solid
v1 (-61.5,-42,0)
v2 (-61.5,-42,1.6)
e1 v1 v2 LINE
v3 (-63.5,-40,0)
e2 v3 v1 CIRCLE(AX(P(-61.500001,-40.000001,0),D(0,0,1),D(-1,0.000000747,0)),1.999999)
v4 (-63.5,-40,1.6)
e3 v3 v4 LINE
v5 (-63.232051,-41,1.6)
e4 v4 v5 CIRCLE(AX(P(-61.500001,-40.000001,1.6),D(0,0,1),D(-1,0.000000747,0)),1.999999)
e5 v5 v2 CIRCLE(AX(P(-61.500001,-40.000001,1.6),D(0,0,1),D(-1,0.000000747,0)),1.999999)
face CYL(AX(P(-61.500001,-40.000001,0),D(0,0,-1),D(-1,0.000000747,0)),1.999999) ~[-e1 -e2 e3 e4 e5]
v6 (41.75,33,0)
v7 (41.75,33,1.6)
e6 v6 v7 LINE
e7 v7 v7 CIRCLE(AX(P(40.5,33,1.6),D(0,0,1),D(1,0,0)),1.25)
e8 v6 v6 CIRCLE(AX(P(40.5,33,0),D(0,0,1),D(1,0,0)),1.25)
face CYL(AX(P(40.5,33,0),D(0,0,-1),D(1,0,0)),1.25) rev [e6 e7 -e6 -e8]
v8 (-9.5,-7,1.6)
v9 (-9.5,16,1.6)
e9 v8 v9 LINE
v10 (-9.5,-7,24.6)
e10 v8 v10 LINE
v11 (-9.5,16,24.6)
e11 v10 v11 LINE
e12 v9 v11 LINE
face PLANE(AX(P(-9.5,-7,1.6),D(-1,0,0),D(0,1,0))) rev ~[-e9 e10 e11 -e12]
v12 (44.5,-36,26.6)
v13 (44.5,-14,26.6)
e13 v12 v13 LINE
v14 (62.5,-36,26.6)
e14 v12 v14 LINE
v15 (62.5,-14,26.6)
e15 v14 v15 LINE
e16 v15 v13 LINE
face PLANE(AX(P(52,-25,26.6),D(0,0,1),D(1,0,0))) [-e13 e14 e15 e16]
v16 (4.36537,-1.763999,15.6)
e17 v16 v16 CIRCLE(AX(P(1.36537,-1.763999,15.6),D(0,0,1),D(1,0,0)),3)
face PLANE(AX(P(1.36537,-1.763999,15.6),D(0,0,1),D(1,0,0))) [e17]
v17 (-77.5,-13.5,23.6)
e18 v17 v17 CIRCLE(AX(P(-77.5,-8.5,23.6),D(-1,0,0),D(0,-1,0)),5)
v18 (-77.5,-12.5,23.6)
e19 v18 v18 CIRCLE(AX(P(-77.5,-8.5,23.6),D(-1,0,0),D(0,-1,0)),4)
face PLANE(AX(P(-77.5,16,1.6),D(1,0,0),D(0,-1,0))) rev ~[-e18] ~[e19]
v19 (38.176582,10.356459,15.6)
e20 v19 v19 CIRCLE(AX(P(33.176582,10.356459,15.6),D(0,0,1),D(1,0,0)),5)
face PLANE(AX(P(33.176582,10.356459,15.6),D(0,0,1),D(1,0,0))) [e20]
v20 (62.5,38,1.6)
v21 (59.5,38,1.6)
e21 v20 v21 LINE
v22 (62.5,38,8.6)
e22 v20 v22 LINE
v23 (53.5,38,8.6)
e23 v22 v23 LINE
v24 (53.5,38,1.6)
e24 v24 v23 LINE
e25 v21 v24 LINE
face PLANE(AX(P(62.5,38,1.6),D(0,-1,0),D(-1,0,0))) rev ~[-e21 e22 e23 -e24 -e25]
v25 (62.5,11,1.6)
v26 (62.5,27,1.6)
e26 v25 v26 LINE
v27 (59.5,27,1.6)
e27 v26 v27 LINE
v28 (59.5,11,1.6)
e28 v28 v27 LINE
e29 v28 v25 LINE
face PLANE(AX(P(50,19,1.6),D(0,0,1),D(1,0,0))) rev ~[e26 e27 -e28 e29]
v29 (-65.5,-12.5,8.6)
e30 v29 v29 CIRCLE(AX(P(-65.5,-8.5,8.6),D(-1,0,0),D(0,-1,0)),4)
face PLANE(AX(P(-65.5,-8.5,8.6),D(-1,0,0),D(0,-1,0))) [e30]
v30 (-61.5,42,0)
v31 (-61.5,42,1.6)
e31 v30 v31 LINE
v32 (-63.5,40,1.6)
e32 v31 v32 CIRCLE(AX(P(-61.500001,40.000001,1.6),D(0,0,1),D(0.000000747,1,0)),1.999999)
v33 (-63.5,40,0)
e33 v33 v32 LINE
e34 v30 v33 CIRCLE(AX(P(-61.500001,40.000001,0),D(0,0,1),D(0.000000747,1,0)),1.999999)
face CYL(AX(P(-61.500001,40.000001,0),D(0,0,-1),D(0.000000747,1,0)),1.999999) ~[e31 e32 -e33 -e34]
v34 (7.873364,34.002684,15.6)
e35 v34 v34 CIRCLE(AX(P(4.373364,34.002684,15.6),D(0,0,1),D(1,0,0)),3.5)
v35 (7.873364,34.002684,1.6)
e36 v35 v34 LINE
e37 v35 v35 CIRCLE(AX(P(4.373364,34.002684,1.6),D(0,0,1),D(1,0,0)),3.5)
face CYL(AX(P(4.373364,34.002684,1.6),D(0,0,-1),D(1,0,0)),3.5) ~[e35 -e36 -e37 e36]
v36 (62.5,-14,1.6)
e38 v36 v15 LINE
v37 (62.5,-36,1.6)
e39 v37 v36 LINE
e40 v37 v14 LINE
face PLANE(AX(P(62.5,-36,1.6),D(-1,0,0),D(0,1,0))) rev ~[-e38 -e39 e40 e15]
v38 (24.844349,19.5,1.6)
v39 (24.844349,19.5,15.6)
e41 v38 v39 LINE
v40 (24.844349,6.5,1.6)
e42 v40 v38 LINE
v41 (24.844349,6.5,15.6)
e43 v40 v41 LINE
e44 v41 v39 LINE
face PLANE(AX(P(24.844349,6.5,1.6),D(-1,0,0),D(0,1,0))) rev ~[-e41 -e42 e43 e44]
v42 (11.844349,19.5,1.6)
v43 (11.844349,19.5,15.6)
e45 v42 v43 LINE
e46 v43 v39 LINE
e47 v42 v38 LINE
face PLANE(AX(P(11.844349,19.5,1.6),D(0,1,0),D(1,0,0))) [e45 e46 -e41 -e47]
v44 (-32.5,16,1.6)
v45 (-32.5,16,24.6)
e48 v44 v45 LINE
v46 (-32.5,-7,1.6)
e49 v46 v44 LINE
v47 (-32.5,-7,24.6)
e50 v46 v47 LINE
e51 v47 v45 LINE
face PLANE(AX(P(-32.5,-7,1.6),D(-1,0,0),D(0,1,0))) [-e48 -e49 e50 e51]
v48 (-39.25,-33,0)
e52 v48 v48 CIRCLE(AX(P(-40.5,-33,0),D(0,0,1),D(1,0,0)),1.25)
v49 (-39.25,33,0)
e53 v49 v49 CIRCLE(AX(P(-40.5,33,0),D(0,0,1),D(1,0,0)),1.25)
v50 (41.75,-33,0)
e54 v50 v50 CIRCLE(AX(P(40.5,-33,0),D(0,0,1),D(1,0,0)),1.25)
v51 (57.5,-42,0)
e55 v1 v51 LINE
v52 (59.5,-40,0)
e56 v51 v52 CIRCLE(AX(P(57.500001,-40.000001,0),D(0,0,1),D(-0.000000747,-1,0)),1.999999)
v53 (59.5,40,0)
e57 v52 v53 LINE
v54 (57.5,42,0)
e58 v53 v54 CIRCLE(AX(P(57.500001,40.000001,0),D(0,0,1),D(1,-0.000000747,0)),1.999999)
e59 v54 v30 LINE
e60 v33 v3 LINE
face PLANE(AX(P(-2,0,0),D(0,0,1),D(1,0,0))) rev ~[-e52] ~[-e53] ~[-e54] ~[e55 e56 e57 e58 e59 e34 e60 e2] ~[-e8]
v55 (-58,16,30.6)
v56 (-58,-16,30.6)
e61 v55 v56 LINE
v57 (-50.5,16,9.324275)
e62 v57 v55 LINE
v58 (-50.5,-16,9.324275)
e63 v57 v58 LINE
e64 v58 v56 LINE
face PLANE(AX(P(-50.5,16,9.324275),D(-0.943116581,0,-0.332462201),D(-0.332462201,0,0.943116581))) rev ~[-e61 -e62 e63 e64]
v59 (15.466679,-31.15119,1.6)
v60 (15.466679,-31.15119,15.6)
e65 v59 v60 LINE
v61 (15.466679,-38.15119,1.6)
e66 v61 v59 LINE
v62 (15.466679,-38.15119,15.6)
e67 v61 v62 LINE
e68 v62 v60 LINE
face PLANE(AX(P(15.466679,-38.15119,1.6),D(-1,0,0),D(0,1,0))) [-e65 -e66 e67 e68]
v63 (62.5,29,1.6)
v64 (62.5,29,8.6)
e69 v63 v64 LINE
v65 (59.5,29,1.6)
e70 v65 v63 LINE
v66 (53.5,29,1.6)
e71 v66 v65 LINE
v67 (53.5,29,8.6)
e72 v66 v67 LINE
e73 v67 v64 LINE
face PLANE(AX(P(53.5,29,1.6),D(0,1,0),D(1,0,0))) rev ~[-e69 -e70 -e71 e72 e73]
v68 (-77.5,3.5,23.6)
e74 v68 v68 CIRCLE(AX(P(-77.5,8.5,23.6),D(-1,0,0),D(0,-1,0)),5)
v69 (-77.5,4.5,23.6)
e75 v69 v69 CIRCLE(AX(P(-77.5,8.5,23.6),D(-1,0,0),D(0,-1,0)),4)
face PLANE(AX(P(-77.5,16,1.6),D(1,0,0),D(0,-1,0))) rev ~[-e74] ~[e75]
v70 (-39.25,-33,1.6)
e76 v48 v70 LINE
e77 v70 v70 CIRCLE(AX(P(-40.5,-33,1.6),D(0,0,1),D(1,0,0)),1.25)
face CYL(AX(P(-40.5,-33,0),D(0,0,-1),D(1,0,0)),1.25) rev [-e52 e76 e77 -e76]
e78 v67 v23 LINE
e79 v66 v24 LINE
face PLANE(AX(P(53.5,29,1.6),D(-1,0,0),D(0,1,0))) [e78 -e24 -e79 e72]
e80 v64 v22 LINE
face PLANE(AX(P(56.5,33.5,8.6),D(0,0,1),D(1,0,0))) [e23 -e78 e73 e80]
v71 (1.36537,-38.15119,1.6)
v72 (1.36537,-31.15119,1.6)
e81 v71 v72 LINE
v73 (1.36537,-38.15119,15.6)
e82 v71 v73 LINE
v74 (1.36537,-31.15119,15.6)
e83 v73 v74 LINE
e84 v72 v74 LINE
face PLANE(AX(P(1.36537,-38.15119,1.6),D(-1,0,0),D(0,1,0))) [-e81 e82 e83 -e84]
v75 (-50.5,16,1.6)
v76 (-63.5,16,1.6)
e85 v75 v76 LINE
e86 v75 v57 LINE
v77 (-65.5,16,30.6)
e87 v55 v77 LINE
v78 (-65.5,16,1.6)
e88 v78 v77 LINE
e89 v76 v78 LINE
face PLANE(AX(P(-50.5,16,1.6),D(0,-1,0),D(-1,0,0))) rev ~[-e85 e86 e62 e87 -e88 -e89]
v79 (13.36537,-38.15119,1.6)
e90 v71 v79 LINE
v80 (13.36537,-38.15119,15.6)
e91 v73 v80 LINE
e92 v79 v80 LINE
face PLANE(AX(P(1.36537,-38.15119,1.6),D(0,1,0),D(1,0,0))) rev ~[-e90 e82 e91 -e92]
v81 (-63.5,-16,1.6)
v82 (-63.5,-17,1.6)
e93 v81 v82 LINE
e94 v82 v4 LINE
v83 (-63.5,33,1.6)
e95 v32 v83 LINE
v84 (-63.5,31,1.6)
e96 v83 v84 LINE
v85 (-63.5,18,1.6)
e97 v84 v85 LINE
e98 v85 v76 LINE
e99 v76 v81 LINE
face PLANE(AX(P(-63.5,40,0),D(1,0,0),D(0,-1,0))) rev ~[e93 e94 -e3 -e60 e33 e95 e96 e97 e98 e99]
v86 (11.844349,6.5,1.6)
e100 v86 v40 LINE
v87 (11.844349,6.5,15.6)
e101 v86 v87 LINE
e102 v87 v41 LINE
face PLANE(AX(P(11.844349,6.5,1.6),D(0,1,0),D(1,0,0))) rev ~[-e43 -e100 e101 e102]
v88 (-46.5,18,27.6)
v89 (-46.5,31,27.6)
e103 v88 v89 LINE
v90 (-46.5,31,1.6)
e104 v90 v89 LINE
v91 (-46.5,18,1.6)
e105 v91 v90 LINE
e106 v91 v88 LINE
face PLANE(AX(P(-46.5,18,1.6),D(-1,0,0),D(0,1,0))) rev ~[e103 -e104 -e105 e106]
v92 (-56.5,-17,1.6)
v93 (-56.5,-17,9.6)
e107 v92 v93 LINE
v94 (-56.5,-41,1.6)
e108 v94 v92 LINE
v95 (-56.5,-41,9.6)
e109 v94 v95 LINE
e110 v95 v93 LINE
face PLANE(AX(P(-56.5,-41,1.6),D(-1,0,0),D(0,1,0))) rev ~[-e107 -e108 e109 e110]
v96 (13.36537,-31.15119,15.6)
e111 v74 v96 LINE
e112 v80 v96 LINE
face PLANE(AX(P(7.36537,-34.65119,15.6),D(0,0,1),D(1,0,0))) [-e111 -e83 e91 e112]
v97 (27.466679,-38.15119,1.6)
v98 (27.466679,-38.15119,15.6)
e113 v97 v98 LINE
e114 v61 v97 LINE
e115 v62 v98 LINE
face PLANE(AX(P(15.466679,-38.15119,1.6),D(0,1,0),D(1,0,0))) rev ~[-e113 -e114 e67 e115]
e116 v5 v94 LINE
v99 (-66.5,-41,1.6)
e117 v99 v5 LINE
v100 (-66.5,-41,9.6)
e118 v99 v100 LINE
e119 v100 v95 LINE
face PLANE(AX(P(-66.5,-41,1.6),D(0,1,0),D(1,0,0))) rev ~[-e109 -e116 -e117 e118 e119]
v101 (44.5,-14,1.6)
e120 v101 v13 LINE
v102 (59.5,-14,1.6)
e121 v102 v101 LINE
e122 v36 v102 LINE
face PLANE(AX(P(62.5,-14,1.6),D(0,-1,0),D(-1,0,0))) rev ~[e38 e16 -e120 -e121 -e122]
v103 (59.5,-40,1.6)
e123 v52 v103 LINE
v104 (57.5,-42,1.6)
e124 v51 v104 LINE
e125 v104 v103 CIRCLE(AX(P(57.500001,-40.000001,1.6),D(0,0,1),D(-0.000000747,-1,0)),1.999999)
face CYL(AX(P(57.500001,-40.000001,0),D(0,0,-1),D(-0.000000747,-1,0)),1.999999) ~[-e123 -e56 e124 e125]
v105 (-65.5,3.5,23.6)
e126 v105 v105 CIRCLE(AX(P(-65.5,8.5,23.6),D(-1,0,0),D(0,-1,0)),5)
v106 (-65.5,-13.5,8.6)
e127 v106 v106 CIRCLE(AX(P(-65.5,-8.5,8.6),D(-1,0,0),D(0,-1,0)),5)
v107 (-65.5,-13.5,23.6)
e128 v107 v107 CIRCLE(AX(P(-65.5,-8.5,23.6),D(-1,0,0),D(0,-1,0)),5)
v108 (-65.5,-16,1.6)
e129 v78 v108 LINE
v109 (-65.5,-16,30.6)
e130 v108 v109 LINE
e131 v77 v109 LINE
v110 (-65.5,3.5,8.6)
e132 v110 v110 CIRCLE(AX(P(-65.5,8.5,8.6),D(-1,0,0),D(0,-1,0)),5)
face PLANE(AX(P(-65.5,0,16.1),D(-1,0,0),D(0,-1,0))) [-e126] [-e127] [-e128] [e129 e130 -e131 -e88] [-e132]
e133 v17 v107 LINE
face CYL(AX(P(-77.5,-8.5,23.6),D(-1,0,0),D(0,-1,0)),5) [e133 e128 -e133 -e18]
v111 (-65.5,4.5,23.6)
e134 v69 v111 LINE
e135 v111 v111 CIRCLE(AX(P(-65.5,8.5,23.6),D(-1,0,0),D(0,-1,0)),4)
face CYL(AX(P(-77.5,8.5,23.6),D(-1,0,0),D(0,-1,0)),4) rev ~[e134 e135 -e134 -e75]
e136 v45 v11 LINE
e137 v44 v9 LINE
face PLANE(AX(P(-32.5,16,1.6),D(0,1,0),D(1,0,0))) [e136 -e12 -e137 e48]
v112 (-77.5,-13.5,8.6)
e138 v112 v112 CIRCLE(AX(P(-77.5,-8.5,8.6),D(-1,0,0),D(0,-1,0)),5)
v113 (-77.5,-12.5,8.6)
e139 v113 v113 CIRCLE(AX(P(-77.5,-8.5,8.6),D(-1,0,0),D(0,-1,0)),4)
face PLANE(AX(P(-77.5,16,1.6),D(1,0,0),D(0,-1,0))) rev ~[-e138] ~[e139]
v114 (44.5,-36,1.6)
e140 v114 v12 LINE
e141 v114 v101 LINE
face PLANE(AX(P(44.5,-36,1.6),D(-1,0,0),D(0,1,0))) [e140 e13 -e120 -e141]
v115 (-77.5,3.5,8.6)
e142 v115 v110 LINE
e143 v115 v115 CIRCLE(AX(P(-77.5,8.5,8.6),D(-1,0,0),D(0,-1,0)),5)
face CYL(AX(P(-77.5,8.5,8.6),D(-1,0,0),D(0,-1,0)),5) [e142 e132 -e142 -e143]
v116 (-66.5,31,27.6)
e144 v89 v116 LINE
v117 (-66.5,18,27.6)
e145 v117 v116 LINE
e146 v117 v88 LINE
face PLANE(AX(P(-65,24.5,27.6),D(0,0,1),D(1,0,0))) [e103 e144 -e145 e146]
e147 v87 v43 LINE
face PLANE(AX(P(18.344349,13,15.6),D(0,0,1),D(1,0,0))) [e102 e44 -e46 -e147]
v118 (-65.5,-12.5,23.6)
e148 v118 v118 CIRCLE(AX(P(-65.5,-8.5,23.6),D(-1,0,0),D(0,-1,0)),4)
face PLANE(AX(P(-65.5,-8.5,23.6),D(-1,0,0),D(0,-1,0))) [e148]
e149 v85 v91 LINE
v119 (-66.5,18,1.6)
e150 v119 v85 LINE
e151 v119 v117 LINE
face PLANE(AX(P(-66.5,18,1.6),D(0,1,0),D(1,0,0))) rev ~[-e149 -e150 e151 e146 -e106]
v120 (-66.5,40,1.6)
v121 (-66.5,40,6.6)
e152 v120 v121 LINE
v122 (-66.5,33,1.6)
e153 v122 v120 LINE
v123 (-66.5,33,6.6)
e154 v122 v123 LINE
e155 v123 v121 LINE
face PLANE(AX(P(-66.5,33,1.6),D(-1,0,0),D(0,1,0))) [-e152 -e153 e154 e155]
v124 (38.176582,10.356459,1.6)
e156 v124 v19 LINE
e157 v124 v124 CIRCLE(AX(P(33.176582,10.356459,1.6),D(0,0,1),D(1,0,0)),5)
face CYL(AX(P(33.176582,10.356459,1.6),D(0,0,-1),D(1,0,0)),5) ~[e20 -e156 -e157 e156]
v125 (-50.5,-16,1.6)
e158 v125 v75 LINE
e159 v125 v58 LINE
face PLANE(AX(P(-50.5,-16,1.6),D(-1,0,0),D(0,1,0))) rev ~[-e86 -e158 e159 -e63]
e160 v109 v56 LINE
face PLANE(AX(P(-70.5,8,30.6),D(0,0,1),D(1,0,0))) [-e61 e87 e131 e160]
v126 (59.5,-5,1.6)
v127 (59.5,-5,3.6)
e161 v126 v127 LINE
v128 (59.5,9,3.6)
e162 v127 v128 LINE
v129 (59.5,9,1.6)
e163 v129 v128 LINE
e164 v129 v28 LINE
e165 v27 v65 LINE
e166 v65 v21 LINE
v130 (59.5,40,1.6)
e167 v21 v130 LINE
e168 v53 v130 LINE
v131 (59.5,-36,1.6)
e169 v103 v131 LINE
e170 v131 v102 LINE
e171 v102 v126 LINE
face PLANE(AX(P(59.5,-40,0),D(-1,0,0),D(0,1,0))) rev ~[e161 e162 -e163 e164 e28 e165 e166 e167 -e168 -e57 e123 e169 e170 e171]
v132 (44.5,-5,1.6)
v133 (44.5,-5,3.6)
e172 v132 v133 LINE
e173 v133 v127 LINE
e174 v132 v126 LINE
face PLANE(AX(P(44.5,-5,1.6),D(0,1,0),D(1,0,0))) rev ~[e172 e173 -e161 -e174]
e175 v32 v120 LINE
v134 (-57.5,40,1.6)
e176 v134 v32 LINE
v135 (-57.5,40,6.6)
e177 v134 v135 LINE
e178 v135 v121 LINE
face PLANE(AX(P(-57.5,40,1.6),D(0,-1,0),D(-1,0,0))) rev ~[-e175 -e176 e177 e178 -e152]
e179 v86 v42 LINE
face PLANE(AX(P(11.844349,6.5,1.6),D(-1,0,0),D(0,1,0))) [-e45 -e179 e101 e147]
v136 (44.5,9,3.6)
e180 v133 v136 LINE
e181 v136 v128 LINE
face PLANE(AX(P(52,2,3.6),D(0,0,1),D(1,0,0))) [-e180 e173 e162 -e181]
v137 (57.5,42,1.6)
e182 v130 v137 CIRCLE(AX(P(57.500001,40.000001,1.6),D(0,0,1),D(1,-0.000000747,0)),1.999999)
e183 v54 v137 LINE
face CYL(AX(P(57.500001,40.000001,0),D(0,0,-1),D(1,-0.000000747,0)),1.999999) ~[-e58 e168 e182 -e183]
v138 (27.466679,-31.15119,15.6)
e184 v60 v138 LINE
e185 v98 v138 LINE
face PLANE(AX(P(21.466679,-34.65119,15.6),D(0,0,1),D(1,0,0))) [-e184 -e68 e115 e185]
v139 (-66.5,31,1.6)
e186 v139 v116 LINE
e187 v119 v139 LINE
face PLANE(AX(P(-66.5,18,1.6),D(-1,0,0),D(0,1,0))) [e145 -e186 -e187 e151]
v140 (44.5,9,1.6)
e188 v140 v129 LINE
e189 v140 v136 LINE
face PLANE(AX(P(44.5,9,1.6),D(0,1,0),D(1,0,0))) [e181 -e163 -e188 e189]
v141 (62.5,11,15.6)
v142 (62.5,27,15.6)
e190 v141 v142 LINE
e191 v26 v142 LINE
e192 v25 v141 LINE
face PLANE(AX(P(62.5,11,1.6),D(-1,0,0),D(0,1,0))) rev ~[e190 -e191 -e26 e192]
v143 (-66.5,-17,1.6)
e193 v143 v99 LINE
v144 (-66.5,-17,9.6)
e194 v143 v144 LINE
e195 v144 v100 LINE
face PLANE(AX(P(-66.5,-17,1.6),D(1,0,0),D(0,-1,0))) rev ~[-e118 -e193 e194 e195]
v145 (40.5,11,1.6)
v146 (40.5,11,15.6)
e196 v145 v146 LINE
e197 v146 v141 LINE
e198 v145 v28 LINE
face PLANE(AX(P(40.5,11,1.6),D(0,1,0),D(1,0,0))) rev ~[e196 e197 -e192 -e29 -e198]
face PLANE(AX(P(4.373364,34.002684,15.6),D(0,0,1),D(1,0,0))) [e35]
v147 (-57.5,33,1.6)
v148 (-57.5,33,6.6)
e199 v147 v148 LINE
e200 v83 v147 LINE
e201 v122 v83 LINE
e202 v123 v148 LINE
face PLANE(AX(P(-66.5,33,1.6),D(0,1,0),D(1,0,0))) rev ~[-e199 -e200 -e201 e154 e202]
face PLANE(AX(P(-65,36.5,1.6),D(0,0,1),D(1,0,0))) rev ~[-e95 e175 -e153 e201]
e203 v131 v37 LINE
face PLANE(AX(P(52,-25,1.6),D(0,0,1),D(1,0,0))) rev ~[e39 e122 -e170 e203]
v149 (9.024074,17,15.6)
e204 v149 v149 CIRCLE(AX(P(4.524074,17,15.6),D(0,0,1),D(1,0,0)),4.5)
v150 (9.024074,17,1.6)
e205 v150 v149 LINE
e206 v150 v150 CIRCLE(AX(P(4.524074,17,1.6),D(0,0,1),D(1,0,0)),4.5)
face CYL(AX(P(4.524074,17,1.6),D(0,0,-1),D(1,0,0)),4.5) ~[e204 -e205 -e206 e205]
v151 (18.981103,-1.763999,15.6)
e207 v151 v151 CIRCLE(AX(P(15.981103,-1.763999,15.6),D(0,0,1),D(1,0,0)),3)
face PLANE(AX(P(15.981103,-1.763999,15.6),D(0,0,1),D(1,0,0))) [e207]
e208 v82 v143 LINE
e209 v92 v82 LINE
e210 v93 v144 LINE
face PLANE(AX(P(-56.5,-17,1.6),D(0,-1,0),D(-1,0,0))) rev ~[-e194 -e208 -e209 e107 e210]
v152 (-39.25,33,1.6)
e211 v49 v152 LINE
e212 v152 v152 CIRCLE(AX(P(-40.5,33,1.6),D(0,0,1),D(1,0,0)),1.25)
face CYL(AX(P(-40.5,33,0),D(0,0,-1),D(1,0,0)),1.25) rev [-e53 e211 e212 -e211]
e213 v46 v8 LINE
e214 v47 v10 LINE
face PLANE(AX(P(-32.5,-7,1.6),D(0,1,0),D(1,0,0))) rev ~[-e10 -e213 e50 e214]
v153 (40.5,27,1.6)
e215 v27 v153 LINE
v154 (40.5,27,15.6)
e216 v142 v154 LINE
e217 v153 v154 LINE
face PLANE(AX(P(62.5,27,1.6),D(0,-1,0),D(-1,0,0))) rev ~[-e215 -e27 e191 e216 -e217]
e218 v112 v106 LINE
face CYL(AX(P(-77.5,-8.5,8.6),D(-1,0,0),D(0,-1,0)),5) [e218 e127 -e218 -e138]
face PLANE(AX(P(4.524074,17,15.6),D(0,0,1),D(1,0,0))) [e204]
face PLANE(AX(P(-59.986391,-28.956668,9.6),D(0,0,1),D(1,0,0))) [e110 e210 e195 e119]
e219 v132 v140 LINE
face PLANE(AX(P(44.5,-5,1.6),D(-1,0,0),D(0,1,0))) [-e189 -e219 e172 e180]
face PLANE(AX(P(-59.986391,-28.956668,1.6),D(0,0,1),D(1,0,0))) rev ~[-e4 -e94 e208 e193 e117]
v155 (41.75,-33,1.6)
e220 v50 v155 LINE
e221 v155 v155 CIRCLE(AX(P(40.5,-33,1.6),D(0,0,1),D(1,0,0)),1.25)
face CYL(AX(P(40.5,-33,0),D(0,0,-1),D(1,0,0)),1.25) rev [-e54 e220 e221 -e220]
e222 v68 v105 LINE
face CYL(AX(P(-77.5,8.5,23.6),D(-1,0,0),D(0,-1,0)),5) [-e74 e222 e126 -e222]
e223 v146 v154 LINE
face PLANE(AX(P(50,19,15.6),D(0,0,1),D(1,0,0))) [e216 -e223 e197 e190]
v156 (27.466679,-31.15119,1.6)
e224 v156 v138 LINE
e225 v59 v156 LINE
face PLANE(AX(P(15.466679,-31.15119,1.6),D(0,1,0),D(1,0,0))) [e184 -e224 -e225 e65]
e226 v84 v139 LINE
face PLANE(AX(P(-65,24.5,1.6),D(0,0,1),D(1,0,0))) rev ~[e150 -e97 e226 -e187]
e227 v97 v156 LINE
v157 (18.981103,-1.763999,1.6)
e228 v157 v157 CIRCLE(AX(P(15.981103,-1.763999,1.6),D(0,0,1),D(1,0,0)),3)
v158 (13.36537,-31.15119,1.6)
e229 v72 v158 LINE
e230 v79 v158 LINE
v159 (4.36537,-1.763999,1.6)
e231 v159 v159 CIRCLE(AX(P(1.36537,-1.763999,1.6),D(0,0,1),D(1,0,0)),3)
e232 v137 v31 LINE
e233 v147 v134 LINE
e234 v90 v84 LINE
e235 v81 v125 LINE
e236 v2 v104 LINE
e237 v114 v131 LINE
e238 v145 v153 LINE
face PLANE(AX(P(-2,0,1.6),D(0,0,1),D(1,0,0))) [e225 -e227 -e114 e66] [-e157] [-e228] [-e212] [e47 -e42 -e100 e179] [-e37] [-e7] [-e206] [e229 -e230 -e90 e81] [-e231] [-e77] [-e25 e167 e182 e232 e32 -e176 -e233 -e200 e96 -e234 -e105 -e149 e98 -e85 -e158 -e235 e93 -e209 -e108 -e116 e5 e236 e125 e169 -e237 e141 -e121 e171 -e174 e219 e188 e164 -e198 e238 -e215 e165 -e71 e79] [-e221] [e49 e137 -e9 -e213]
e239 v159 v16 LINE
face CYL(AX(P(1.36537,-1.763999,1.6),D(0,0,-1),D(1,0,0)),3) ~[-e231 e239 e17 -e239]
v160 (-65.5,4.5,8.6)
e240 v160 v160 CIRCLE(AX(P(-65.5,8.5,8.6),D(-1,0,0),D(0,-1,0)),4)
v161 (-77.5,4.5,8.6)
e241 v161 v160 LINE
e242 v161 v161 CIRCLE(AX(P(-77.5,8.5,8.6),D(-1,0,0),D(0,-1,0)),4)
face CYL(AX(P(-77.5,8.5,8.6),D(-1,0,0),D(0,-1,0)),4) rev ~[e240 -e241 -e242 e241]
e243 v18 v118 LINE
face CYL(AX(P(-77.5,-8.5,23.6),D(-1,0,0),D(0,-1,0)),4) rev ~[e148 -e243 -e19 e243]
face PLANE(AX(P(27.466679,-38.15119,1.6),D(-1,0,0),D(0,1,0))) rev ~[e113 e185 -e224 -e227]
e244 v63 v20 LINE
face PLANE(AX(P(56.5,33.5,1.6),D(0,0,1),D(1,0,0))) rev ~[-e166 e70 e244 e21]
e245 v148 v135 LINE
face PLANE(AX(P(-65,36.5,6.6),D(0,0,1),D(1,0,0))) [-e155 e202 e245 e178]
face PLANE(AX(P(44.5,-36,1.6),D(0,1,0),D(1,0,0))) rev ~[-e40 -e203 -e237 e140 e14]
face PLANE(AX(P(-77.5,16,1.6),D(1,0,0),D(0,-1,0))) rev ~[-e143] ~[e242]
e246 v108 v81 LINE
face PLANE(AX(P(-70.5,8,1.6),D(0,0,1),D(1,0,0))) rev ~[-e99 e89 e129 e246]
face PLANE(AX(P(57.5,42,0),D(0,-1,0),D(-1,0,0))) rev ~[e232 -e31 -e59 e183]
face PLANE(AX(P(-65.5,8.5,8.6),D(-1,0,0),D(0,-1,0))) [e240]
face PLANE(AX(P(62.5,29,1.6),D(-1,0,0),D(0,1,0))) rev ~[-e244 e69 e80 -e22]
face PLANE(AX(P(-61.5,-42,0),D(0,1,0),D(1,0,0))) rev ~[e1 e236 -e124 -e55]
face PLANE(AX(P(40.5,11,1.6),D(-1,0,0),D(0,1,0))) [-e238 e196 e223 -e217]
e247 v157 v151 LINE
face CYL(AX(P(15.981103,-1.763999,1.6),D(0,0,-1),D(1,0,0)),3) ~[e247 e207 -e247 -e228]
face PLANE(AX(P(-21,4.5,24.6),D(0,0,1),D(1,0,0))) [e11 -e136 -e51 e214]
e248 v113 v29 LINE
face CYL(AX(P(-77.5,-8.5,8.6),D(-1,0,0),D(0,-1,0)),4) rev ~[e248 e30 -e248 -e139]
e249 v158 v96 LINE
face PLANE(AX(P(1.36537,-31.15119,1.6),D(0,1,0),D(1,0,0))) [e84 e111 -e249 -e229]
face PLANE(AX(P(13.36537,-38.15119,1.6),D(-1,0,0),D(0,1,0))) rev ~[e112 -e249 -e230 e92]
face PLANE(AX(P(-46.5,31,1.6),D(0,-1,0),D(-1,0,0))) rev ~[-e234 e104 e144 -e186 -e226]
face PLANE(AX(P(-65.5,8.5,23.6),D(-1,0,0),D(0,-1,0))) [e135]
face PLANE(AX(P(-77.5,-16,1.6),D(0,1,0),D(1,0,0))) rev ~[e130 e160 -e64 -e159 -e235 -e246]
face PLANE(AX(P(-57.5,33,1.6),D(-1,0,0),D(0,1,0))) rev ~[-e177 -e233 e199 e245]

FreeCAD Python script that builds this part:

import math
import FreeCAD as App
import Part
import Sketcher
Q = App.Units.Quantity


def add_polygon(sketch, points):
    """Adds a closed chain of lines whose ends are joined by coincident constraints."""
    first, n = sketch.GeometryCount, len(points)
    for a, b in zip(points, points[1:] + points[:1]):
        sketch.addGeometry(Part.LineSegment(App.Vector(*a, 0), App.Vector(*b, 0)), False)
    for i in range(n):
        sketch.addConstraint(Sketcher.Constraint("Coincident", first + i, 2, first + (i + 1) % n, 1))

doc = App.newDocument("Part")
params = doc.addObject("Spreadsheet::Sheet", "Params")
for row, (alias, value) in enumerate([
    ("sketch1_radius", "1.999999 mm"),
    ("sketch1_diameter", "2.5 mm"),
    ("sketch1_width", "119 mm"),
    ("sketch1_height", "80 mm"),
    ("pad1_length", "1.6 mm"),
    ("sketch2_width", "9 mm"),
    ("sketch2_height", "7 mm"),
    ("pad2_length", "5 mm"),
    ("sketch3_width", "10 mm"),
    ("sketch3_height", "24 mm"),
    ("pad3_length", "8 mm"),
    ("sketch4_width", "27 mm"),
    ("sketch4_height", "32 mm"),
    ("pad4_length", "29 mm"),
    ("sketch5_diameter", "10 mm"),
    ("sketch5_diameter2", "8 mm"),
    ("sketch5_width", "32 mm"),
    ("sketch5_height", "29 mm"),
    ("pocket1_length", "12 mm"),
    ("sketch6_width", "7.5 mm"),
    ("sketch7_width", "20 mm"),
    ("sketch7_height", "13 mm"),
    ("pad5_length", "26 mm"),
    ("sketch8_width", "9 mm"),
    ("pad6_length", "7 mm"),
    ("sketch9_diameter", "7 mm"),
    ("sketch9_diameter2", "9 mm"),
    ("sketch9_diameter3", "10 mm"),
    ("sketch9_diameter4", "6 mm"),
    ("sketch9_width", "22 mm"),
    ("pad7_length", "14 mm"),
    ("sketch10_width", "15 mm"),
    ("sketch10_height", "14 mm"),
    ("pad8_length", "2 mm"),
    ("sketch11_width", "18 mm"),
    ("sketch11_height", "22 mm"),
    ("pad9_length", "25 mm"),
    ("sketch12_width", "23 mm"),
    ("pad10_length", "23 mm"),
], start=1):
    params.set(f"A{row}", alias)
    params.set(f"B{row}", "=" + value)
    params.setAlias(f"B{row}", alias)

body = doc.addObject("PartDesign::Body", "Body")

sketch1 = doc.addObject("Sketcher::SketchObject", "Sketch")
body.addObject(sketch1)
sketch1.AttachmentSupport = (doc.XY_Plane, [""])
sketch1.MapMode = "FlatFace"
sketch1.addGeometry([
    Part.LineSegment(App.Vector(57.5, 42, 0), App.Vector(-61.5, 42, 0)),
    Part.ArcOfCircle(Part.Circle(App.Vector(-61.500001, 40.000001, 0), App.Vector(0, 0, 1), 1.999999), math.radians(89.999957), math.radians(180.000043)),
    Part.LineSegment(App.Vector(-63.5, 40, 0), App.Vector(-63.5, -40, 0)),
    Part.ArcOfCircle(Part.Circle(App.Vector(-61.500001, -40.000001, 0), App.Vector(0, 0, 1), 1.999999), math.radians(179.999957), math.radians(270.000043)),
    Part.LineSegment(App.Vector(-61.5, -42, 0), App.Vector(57.5, -42, 0)),
    Part.ArcOfCircle(Part.Circle(App.Vector(57.500001, -40.000001, 0), App.Vector(0, 0, 1), 1.999999), math.radians(-90.000043), math.radians(0.000043)),
    Part.LineSegment(App.Vector(59.5, -40, 0), App.Vector(59.5, 40, 0)),
    Part.ArcOfCircle(Part.Circle(App.Vector(57.500001, 40.000001, 0), App.Vector(0, 0, 1), 1.999999), math.radians(-0.000043), math.radians(90.000043)),
    Part.Circle(App.Vector(-40.5, -33, 0), App.Vector(0, 0, 1), 1.25),
    Part.Circle(App.Vector(40.5, -33, 0), App.Vector(0, 0, 1), 1.25),
    Part.Circle(App.Vector(-40.5, 33, 0), App.Vector(0, 0, 1), 1.25),
    Part.Circle(App.Vector(40.5, 33, 0), App.Vector(0, 0, 1), 1.25),
], False)
sketch1.addConstraint([
    Sketcher.Constraint("Tangent", 0, 2, 1, 1),
    Sketcher.Constraint("Tangent", 1, 2, 2, 1),
    Sketcher.Constraint("Tangent", 2, 2, 3, 1),
    Sketcher.Constraint("Tangent", 3, 2, 4, 1),
    Sketcher.Constraint("Tangent", 4, 2, 5, 1),
    Sketcher.Constraint("Tangent", 5, 2, 6, 1),
    Sketcher.Constraint("Tangent", 6, 2, 7, 1),
    Sketcher.Constraint("Tangent", 7, 2, 0, 1),
    Sketcher.Constraint("Horizontal", 0),
    Sketcher.Constraint("Vertical", 2),
    Sketcher.Constraint("Horizontal", 4),
    Sketcher.Constraint("Vertical", 6),
    Sketcher.Constraint("Equal", 1, 3),
    Sketcher.Constraint("Equal", 3, 5),
    Sketcher.Constraint("Equal", 5, 7),
    Sketcher.Constraint("Equal", 8, 9),
    Sketcher.Constraint("Equal", 9, 10),
    Sketcher.Constraint("Equal", 10, 11),
    Sketcher.Constraint("Symmetric", 9, 3, 10, 3, -1, 1),
    Sketcher.Constraint("Symmetric", 8, 3, 11, 3, -1, 1),
    Sketcher.Constraint("Symmetric", 8, 3, 9, 3, -2),
    Sketcher.Constraint("Radius", 1, Q("1.999999 mm")),
    Sketcher.Constraint("Diameter", 8, Q("2.5 mm")),
    Sketcher.Constraint("DistanceX", 0, 2, 0, 1, Q("119 mm")),
    Sketcher.Constraint("DistanceY", 2, 2, 2, 1, Q("80 mm")),
    Sketcher.Constraint("DistanceY", -1, 1, 1, 3, Q("40.000001 mm")),
    Sketcher.Constraint("DistanceY", 8, 3, -1, 1, Q("33 mm")),
    Sketcher.Constraint("DistanceX", 3, 3, 8, 3, Q("21.000001 mm")),
    Sketcher.Constraint("DistanceX", 9, 3, 5, 3, Q("17.000001 mm")),
])
sketch1.setExpression("Constraints[21]", "Params.sketch1_radius")
sketch1.setExpression("Constraints[22]", "Params.sketch1_diameter")
sketch1.setExpression("Constraints[23]", "Params.sketch1_width")
sketch1.setExpression("Constraints[24]", "Params.sketch1_height")
pad1 = doc.addObject("PartDesign::Pad", "Pad")
body.addObject(pad1)
pad1.Profile = sketch1
pad1.setExpression("Length", "Params.pad1_length")

sketch2 = doc.addObject("Sketcher::SketchObject", "Sketch001")
body.addObject(sketch2)
sketch2.AttachmentSupport = (doc.XY_Plane, [""])
sketch2.MapMode = "FlatFace"
sketch2.AttachmentOffset = App.Placement(App.Vector(0, 0, 1.6), App.Rotation())
add_polygon(sketch2, [(-66.5, 40), (-66.5, 33), (-57.5, 33), (-57.5, 40)])
sketch2.addConstraint([
    Sketcher.Constraint("Vertical", 0),
    Sketcher.Constraint("Horizontal", 1),
    Sketcher.Constraint("Vertical", 2),
    Sketcher.Constraint("Horizontal", 3),
    Sketcher.Constraint("DistanceX", 1, 1, 1, 2, Q("9 mm")),
    Sketcher.Constraint("DistanceY", 0, 2, 0, 1, Q("7 mm")),
    Sketcher.Constraint("DistanceY", -1, 1, 0, 2, Q("33 mm")),
    Sketcher.Constraint("DistanceX", 0, 2, -1, 1, Q("66.5 mm")),
])
sketch2.setExpression("Constraints[8]", "Params.sketch2_width")
sketch2.setExpression("Constraints[9]", "Params.sketch2_height")
pad2 = doc.addObject("PartDesign::Pad", "Pad001")
body.addObject(pad2)
pad2.Profile = sketch2
pad2.setExpression("Length", "Params.pad2_length")

sketch3 = doc.addObject("Sketcher::SketchObject", "Sketch002")
body.addObject(sketch3)
sketch3.AttachmentSupport = (doc.XY_Plane, [""])
sketch3.MapMode = "FlatFace"
sketch3.AttachmentOffset = App.Placement(App.Vector(0, 0, 1.6), App.Rotation())
add_polygon(sketch3, [(-56.5, -17), (-66.5, -17), (-66.5, -41), (-56.5, -41)])
sketch3.addConstraint([
    Sketcher.Constraint("Horizontal", 0),
    Sketcher.Constraint("Vertical", 1),
    Sketcher.Constraint("Horizontal", 2),
    Sketcher.Constraint("Vertical", 3),
    Sketcher.Constraint("DistanceX", 0, 2, 0, 1, Q("10 mm")),
    Sketcher.Constraint("DistanceY", 1, 2, 1, 1, Q("24 mm")),
    Sketcher.Constraint("DistanceY", 0, 2, -1, 1, Q("17 mm")),
    Sketcher.Constraint("DistanceX", 0, 2, -1, 1, Q("66.5 mm")),
])
sketch3.setExpression("Constraints[8]", "Params.sketch3_width")
sketch3.setExpression("Constraints[9]", "Params.sketch3_height")
pad3 = doc.addObject("PartDesign::Pad", "Pad002")
body.addObject(pad3)
pad3.Profile = sketch3
pad3.setExpression("Length", "Params.pad3_length")

sketch4 = doc.addObject("Sketcher::SketchObject", "Sketch003")
body.addObject(sketch4)
sketch4.AttachmentSupport = (doc.XY_Plane, [""])
sketch4.MapMode = "FlatFace"
sketch4.AttachmentOffset = App.Placement(App.Vector(0, 0, 1.6), App.Rotation())
add_polygon(sketch4, [(-77.5, 16), (-77.5, -16), (-50.5, -16), (-50.5, 16)])
sketch4.addConstraint([
    Sketcher.Constraint("Vertical", 0),
    Sketcher.Constraint("Horizontal", 1),
    Sketcher.Constraint("Vertical", 2),
    Sketcher.Constraint("Horizontal", 3),
    Sketcher.Constraint("DistanceX", 1, 1, 1, 2, Q("27 mm")),
    Sketcher.Constraint("DistanceY", 0, 2, 0, 1, Q("32 mm")),
    Sketcher.Constraint("DistanceY", 0, 2, -1, 1, Q("16 mm")),
    Sketcher.Constraint("DistanceX", 0, 2, -1, 1, Q("77.5 mm")),
])
sketch4.setExpression("Constraints[8]", "Params.sketch4_width")
sketch4.setExpression("Constraints[9]", "Params.sketch4_height")
pad4 = doc.addObject("PartDesign::Pad", "Pad003")
body.addObject(pad4)
pad4.Profile = sketch4
pad4.setExpression("Length", "Params.pad4_length")

sketch5 = doc.addObject("Sketcher::SketchObject", "Sketch004")
body.addObject(sketch5)
sketch5.AttachmentSupport = (doc.YZ_Plane, [""])
sketch5.MapMode = "FlatFace"
sketch5.AttachmentOffset = App.Placement(App.Vector(0, 0, -77.5), App.Rotation())
add_polygon(sketch5, [(16, 30.6), (16, 1.6), (-16, 1.6), (-16, 30.6)])
sketch5.addGeometry(Part.Circle(App.Vector(8.5, 8.6, 0), App.Vector(0, 0, 1), 5), False)
sketch5.addGeometry(Part.Circle(App.Vector(-8.5, 8.6, 0), App.Vector(0, 0, 1), 5), False)
sketch5.addGeometry(Part.Circle(App.Vector(8.5, 23.6, 0), App.Vector(0, 0, 1), 5), False)
sketch5.addGeometry(Part.Circle(App.Vector(-8.5, 23.6, 0), App.Vector(0, 0, 1), 5), False)
sketch5.addGeometry(Part.Circle(App.Vector(8.5, 23.6, 0), App.Vector(0, 0, 1), 4), False)
sketch5.addGeometry(Part.Circle(App.Vector(-8.5, 23.6, 0), App.Vector(0, 0, 1), 4), False)
sketch5.addGeometry(Part.Circle(App.Vector(8.5, 8.6, 0), App.Vector(0, 0, 1), 4), False)
sketch5.addGeometry(Part.Circle(App.Vector(-8.5, 8.6, 0), App.Vector(0, 0, 1), 4), False)
sketch5.addConstraint([
    Sketcher.Constraint("Vertical", 0),
    Sketcher.Constraint("Horizontal", 1),
    Sketcher.Constraint("Vertical", 2),
    Sketcher.Constraint("Horizontal", 3),
    Sketcher.Constraint("Coincident", 8, 3, 6, 3),
    Sketcher.Constraint("Coincident", 9, 3, 7, 3),
    Sketcher.Constraint("Coincident", 10, 3, 4, 3),
    Sketcher.Constraint("Coincident", 11, 3, 5, 3),
    Sketcher.Constraint("Equal", 4, 5),
    Sketcher.Constraint("Equal", 5, 6),
    Sketcher.Constraint("Equal", 6, 7),
    Sketcher.Constraint("Equal", 8, 9),
    Sketcher.Constraint("Equal", 9, 10),
    Sketcher.Constraint("Equal", 10, 11),
    Sketcher.Constraint("Symmetric", 4, 3, 5, 3, -2),
    Sketcher.Constraint("Symmetric", 6, 3, 7, 3, -2),
    Sketcher.Constraint("Vertical", 4, 3, 6, 3),
    Sketcher.Constraint("Diameter", 4, Q("10 mm")),
    Sketcher.Constraint("Diameter", 8, Q("8 mm")),
    Sketcher.Constraint("DistanceX", 1, 2, 1, 1, Q("32 mm")),
    Sketcher.Constraint("DistanceY", 0, 2, 0, 1, Q("29 mm")),
    Sketcher.Constraint("DistanceX", -1, 1, 0, 2, Q("16 mm")),
    Sketcher.Constraint("DistanceX", 5, 3, 4, 3, Q("17 mm")),
    Sketcher.Constraint("DistanceY", 4, 3, 6, 3, Q("15 mm")),
    Sketcher.Constraint("DistanceY", 0, 2, 4, 3, Q("7 mm")),
    Sketcher.Constraint("DistanceY", -1, 1, 4, 3, Q("8.6 mm")),
])
sketch5.setExpression("Constraints[21]", "Params.sketch5_diameter")
sketch5.setExpression("Constraints[22]", "Params.sketch5_diameter2")
sketch5.setExpression("Constraints[23]", "Params.sketch5_width")
sketch5.setExpression("Constraints[24]", "Params.sketch5_height")
pocket1 = doc.addObject("PartDesign::Pocket", "Pocket")
body.addObject(pocket1)
pocket1.Profile = sketch5
pocket1.setExpression("Length", "Params.pocket1_length")
pocket1.Reversed = True

sketch6 = doc.addObject("Sketcher::SketchObject", "Sketch005")
body.addObject(sketch6)
sketch6.AttachmentSupport = (doc.XZ_Plane, [""])
sketch6.MapMode = "FlatFace"
sketch6.AttachmentOffset = App.Placement(App.Vector(0, 0, -16), App.Rotation())
add_polygon(sketch6, [(-50.5, 9.324275), (-58, 30.6), (-50.5, 30.6)])
sketch6.addConstraint([
    Sketcher.Constraint("Horizontal", 1),
    Sketcher.Constraint("Vertical", 2),
    Sketcher.Constraint("DistanceX", 1, 1, 1, 2, Q("7.5 mm")),
    Sketcher.Constraint("DistanceX", 0, 2, -1, 1, Q("58 mm")),
    Sketcher.Constraint("DistanceY", -1, 1, 0, 2, Q("30.6 mm")),
    Sketcher.Constraint("DistanceY", 2, 2, 2, 1, Q("21.275725 mm")),
])
sketch6.setExpression("Constraints[5]", "Params.sketch6_width")
pocket2 = doc.addObject("PartDesign::Pocket", "Pocket001")
body.addObject(pocket2)
pocket2.Profile = sketch6
pocket2.Type = "ThroughAll"
pocket2.Reversed = True

sketch7 = doc.addObject("Sketcher::SketchObject", "Sketch006")
body.addObject(sketch7)
sketch7.AttachmentSupport = (doc.XY_Plane, [""])
sketch7.MapMode = "FlatFace"
sketch7.AttachmentOffset = App.Placement(App.Vector(0, 0, 1.6), App.Rotation())
add_polygon(sketch7, [(-66.5, 31), (-66.5, 18), (-46.5, 18), (-46.5, 31)])
sketch7.addConstraint([
    Sketcher.Constraint("Vertical", 0),
    Sketcher.Constraint("Horizontal", 1),
    Sketcher.Constraint("Vertical", 2),
    Sketcher.Constraint("Horizontal", 3),
    Sketcher.Constraint("DistanceX", 1, 1, 1, 2, Q("20 mm")),
    Sketcher.Constraint("DistanceY", 0, 2, 0, 1, Q("13 mm")),
    Sketcher.Constraint("DistanceY", -1, 1, 0, 2, Q("18 mm")),
    Sketcher.Constraint("DistanceX", 0, 2, -1, 1, Q("66.5 mm")),
])
sketch7.setExpression("Constraints[8]", "Params.sketch7_width")
sketch7.setExpression("Constraints[9]", "Params.sketch7_height")
pad5 = doc.addObject("PartDesign::Pad", "Pad004")
body.addObject(pad5)
pad5.Profile = sketch7
pad5.setExpression("Length", "Params.pad5_length")

sketch8 = doc.addObject("Sketcher::SketchObject", "Sketch007")
body.addObject(sketch8)
sketch8.AttachmentSupport = (doc.XY_Plane, [""])
sketch8.MapMode = "FlatFace"
sketch8.AttachmentOffset = App.Placement(App.Vector(0, 0, 1.6), App.Rotation())
add_polygon(sketch8, [(53.5, 38), (53.5, 29), (62.5, 29), (62.5, 38)])
sketch8.addConstraint([
    Sketcher.Constraint("Vertical", 0),
    Sketcher.Constraint("Horizontal", 1),
    Sketcher.Constraint("Vertical", 2),
    Sketcher.Constraint("Horizontal", 3),
    Sketcher.Constraint("Equal", 3, 0),
    Sketcher.Constraint("DistanceX", 1, 1, 1, 2, Q("9 mm")),
    Sketcher.Constraint("DistanceY", -1, 1, 0, 2, Q("29 mm")),
    Sketcher.Constraint("DistanceX", -1, 1, 0, 2, Q("53.5 mm")),
])
sketch8.setExpression("Constraints[9]", "Params.sketch8_width")
pad6 = doc.addObject("PartDesign::Pad", "Pad005")
body.addObject(pad6)
pad6.Profile = sketch8
pad6.setExpression("Length", "Params.pad6_length")

sketch9 = doc.addObject("Sketcher::SketchObject", "Sketch008")
body.addObject(sketch9)
sketch9.AttachmentSupport = (doc.XY_Plane, [""])
sketch9.MapMode = "FlatFace"
sketch9.AttachmentOffset = App.Placement(App.Vector(0, 0, 1.6), App.Rotation())
add_polygon(sketch9, [(40.5, 27), (40.5, 11), (62.5, 11), (62.5, 27)])
sketch9.addGeometry(Part.Circle(App.Vector(4.373364, 34.002684, 0), App.Vector(0, 0, 1), 3.5), False)
sketch9.addGeometry(Part.Circle(App.Vector(4.524074, 17, 0), App.Vector(0, 0, 1), 4.5), False)
add_polygon(sketch9, [(11.844349, 19.5), (11.844349, 6.5), (24.844349, 6.5), (24.844349, 19.5)])
sketch9.addGeometry(Part.Circle(App.Vector(33.176582, 10.356459, 0), App.Vector(0, 0, 1), 5), False)
sketch9.addGeometry(Part.Circle(App.Vector(15.981103, -1.763999, 0), App.Vector(0, 0, 1), 3), False)
sketch9.addGeometry(Part.Circle(App.Vector(1.36537, -1.763999, 0), App.Vector(0, 0, 1), 3), False)
add_polygon(sketch9, [(1.36537, -31.15119), (1.36537, -38.15119), (13.36537, -38.15119), (13.36537, -31.15119)])
add_polygon(sketch9, [(15.466679, -31.15119), (15.466679, -38.15119), (27.466679, -38.15119), (27.466679, -31.15119)])
sketch9.addConstraint([
    Sketcher.Constraint("Vertical", 0),
    Sketcher.Constraint("Horizontal", 1),
    Sketcher.Constraint("Vertical", 2),
    Sketcher.Constraint("Horizontal", 3),
    Sketcher.Constraint("Vertical", 6),
    Sketcher.Constraint("Horizontal", 7),
    Sketcher.Constraint("Vertical", 8),
    Sketcher.Constraint("Horizontal", 9),
    Sketcher.Constraint("Vertical", 13),
    Sketcher.Constraint("Horizontal", 14),
    Sketcher.Constraint("Vertical", 15),
    Sketcher.Constraint("Horizontal", 16),
    Sketcher.Constraint("Vertical", 17),
    Sketcher.Constraint("Horizontal", 18),
    Sketcher.Constraint("Vertical", 19),
    Sketcher.Constraint("Horizontal", 20),
    Sketcher.Constraint("Equal", 11, 12),
    Sketcher.Constraint("Horizontal", 11, 3, 12, 3),
    Sketcher.Constraint("Horizontal", 14, 2, 17, 2),
    Sketcher.Constraint("Horizontal", 16, 2, 19, 2),
    Sketcher.Constraint("Vertical", 12, 3, 13, 2),
    Sketcher.Constraint("Equal", 16, 18),
    Sketcher.Constraint("Equal", 9, 6),
    Sketcher.Constraint("Diameter", 4, Q("7 mm")),
    Sketcher.Constraint("Diameter", 5, Q("9 mm")),
    Sketcher.Constraint("Diameter", 10, Q("10 mm")),
    Sketcher.Constraint("Diameter", 11, Q("6 mm")),
    Sketcher.Constraint("DistanceX", 1, 1, 1, 2, Q("22 mm")),
    Sketcher.Constraint("DistanceX", 7, 1, 7, 2, Q("13 mm")),
    Sketcher.Constraint("DistanceX", 14, 1, 14, 2, Q("12 mm")),
    Sketcher.Constraint("DistanceY", 0, 2, 0, 1, Q("16 mm")),
    Sketcher.Constraint("DistanceY", 13, 2, 13, 1, Q("7 mm")),
    Sketcher.Constraint("DistanceY", -1, 1, 5, 3, Q("17 mm")),
    Sketcher.Constraint("DistanceY", -1, 1, 0, 2, Q("11 mm")),
    Sketcher.Constraint("DistanceX", -1, 1, 0, 2, Q("40.5 mm")),
    Sketcher.Constraint("DistanceY", -1, 1, 6, 2, Q("6.5 mm")),
    Sketcher.Constraint("DistanceY", 11, 3, -1, 1, Q("1.763999 mm")),
    Sketcher.Constraint("DistanceY", -1, 1, 10, 3, Q("10.356459 mm")),
    Sketcher.Constraint("DistanceX", -1, 1, 12, 3, Q("1.36537 mm")),
    Sketcher.Constraint("DistanceX", -1, 1, 6, 2, Q("11.844349 mm")),
    Sketcher.Constraint("DistanceY", 13, 2, -1, 1, Q("38.15119 mm")),
    Sketcher.Constraint("DistanceX", -1, 1, 17, 2, Q("15.466679 mm")),
    Sketcher.Constraint("DistanceX", 4, 3, 5, 3, Q("0.15071 mm")),
    Sketcher.Constraint("DistanceX", 5, 3, 10, 3, Q("28.652508 mm")),
    Sketcher.Constraint("DistanceX", 11, 3, 10, 3, Q("17.195479 mm")),
    Sketcher.Constraint("DistanceX", -1, 1, 4, 3, Q("4.373364 mm")),
    Sketcher.Constraint("DistanceY", -1, 1, 4, 3, Q("34.002684 mm")),
])
sketch9.setExpression("Constraints[39]", "Params.sketch9_diameter")
sketch9.setExpression("Constraints[40]", "Params.sketch9_diameter2")
sketch9.setExpression("Constraints[41]", "Params.sketch9_diameter3")
sketch9.setExpression("Constraints[42]", "Params.sketch9_diameter4")
sketch9.setExpression("Constraints[43]", "Params.sketch9_width")
pad7 = doc.addObject("PartDesign::Pad", "Pad006")
body.addObject(pad7)
pad7.Profile = sketch9
pad7.setExpression("Length", "Params.pad7_length")

sketch10 = doc.addObject("Sketcher::SketchObject", "Sketch009")
body.addObject(sketch10)
sketch10.AttachmentSupport = (doc.XY_Plane, [""])
sketch10.MapMode = "FlatFace"
sketch10.AttachmentOffset = App.Placement(App.Vector(0, 0, 1.6), App.Rotation())
add_polygon(sketch10, [(44.5, 9), (44.5, -5), (59.5, -5), (59.5, 9)])
sketch10.addConstraint([
    Sketcher.Constraint("Vertical", 0),
    Sketcher.Constraint("Horizontal", 1),
    Sketcher.Constraint("Vertical", 2),
    Sketcher.Constraint("Horizontal", 3),
    Sketcher.Constraint("DistanceX", 1, 1, 1, 2, Q("15 mm")),
    Sketcher.Constraint("DistanceY", 0, 2, 0, 1, Q("14 mm")),
    Sketcher.Constraint("DistanceY", 0, 2, -1, 1, Q("5 mm")),
    Sketcher.Constraint("DistanceX", -1, 1, 0, 2, Q("44.5 mm")),
])
sketch10.setExpression("Constraints[8]", "Params.sketch10_width")
sketch10.setExpression("Constraints[9]", "Params.sketch10_height")
pad8 = doc.addObject("PartDesign::Pad", "Pad007")
body.addObject(pad8)
pad8.Profile = sketch10
pad8.setExpression("Length", "Params.pad8_length")

sketch11 = doc.addObject("Sketcher::SketchObject", "Sketch010")
body.addObject(sketch11)
sketch11.AttachmentSupport = (doc.XY_Plane, [""])
sketch11.MapMode = "FlatFace"
sketch11.AttachmentOffset = App.Placement(App.Vector(0, 0, 1.6), App.Rotation())
add_polygon(sketch11, [(44.5, -14), (44.5, -36), (62.5, -36), (62.5, -14)])
sketch11.addConstraint([
    Sketcher.Constraint("Vertical", 0),
    Sketcher.Constraint("Horizontal", 1),
    Sketcher.Constraint("Vertical", 2),
    Sketcher.Constraint("Horizontal", 3),
    Sketcher.Constraint("DistanceX", 1, 1, 1, 2, Q("18 mm")),
    Sketcher.Constraint("DistanceY", 0, 2, 0, 1, Q("22 mm")),
    Sketcher.Constraint("DistanceY", 0, 2, -1, 1, Q("36 mm")),
    Sketcher.Constraint("DistanceX", -1, 1, 0, 2, Q("44.5 mm")),
])
sketch11.setExpression("Constraints[8]", "Params.sketch11_width")
sketch11.setExpression("Constraints[9]", "Params.sketch11_height")
pad9 = doc.addObject("PartDesign::Pad", "Pad008")
body.addObject(pad9)
pad9.Profile = sketch11
pad9.setExpression("Length", "Params.pad9_length")

sketch12 = doc.addObject("Sketcher::SketchObject", "Sketch011")
body.addObject(sketch12)
sketch12.AttachmentSupport = (doc.XY_Plane, [""])
sketch12.MapMode = "FlatFace"
sketch12.AttachmentOffset = App.Placement(App.Vector(0, 0, 1.6), App.Rotation())
add_polygon(sketch12, [(-32.5, 16), (-32.5, -7), (-9.5, -7), (-9.5, 16)])
sketch12.addConstraint([
    Sketcher.Constraint("Vertical", 0),
    Sketcher.Constraint("Horizontal", 1),
    Sketcher.Constraint("Vertical", 2),
    Sketcher.Constraint("Horizontal", 3),
    Sketcher.Constraint("Equal", 3, 0),
    Sketcher.Constraint("DistanceX", 1, 1, 1, 2, Q("23 mm")),
    Sketcher.Constraint("DistanceY", 0, 2, -1, 1, Q("7 mm")),
    Sketcher.Constraint("DistanceX", 0, 2, -1, 1, Q("32.5 mm")),
])
sketch12.setExpression("Constraints[9]", "Params.sketch12_width")
pad10 = doc.addObject("PartDesign::Pad", "Pad009")
body.addObject(pad10)
pad10.Profile = sketch12
pad10.setExpression("Length", "Params.pad10_length")

doc.recompute()
